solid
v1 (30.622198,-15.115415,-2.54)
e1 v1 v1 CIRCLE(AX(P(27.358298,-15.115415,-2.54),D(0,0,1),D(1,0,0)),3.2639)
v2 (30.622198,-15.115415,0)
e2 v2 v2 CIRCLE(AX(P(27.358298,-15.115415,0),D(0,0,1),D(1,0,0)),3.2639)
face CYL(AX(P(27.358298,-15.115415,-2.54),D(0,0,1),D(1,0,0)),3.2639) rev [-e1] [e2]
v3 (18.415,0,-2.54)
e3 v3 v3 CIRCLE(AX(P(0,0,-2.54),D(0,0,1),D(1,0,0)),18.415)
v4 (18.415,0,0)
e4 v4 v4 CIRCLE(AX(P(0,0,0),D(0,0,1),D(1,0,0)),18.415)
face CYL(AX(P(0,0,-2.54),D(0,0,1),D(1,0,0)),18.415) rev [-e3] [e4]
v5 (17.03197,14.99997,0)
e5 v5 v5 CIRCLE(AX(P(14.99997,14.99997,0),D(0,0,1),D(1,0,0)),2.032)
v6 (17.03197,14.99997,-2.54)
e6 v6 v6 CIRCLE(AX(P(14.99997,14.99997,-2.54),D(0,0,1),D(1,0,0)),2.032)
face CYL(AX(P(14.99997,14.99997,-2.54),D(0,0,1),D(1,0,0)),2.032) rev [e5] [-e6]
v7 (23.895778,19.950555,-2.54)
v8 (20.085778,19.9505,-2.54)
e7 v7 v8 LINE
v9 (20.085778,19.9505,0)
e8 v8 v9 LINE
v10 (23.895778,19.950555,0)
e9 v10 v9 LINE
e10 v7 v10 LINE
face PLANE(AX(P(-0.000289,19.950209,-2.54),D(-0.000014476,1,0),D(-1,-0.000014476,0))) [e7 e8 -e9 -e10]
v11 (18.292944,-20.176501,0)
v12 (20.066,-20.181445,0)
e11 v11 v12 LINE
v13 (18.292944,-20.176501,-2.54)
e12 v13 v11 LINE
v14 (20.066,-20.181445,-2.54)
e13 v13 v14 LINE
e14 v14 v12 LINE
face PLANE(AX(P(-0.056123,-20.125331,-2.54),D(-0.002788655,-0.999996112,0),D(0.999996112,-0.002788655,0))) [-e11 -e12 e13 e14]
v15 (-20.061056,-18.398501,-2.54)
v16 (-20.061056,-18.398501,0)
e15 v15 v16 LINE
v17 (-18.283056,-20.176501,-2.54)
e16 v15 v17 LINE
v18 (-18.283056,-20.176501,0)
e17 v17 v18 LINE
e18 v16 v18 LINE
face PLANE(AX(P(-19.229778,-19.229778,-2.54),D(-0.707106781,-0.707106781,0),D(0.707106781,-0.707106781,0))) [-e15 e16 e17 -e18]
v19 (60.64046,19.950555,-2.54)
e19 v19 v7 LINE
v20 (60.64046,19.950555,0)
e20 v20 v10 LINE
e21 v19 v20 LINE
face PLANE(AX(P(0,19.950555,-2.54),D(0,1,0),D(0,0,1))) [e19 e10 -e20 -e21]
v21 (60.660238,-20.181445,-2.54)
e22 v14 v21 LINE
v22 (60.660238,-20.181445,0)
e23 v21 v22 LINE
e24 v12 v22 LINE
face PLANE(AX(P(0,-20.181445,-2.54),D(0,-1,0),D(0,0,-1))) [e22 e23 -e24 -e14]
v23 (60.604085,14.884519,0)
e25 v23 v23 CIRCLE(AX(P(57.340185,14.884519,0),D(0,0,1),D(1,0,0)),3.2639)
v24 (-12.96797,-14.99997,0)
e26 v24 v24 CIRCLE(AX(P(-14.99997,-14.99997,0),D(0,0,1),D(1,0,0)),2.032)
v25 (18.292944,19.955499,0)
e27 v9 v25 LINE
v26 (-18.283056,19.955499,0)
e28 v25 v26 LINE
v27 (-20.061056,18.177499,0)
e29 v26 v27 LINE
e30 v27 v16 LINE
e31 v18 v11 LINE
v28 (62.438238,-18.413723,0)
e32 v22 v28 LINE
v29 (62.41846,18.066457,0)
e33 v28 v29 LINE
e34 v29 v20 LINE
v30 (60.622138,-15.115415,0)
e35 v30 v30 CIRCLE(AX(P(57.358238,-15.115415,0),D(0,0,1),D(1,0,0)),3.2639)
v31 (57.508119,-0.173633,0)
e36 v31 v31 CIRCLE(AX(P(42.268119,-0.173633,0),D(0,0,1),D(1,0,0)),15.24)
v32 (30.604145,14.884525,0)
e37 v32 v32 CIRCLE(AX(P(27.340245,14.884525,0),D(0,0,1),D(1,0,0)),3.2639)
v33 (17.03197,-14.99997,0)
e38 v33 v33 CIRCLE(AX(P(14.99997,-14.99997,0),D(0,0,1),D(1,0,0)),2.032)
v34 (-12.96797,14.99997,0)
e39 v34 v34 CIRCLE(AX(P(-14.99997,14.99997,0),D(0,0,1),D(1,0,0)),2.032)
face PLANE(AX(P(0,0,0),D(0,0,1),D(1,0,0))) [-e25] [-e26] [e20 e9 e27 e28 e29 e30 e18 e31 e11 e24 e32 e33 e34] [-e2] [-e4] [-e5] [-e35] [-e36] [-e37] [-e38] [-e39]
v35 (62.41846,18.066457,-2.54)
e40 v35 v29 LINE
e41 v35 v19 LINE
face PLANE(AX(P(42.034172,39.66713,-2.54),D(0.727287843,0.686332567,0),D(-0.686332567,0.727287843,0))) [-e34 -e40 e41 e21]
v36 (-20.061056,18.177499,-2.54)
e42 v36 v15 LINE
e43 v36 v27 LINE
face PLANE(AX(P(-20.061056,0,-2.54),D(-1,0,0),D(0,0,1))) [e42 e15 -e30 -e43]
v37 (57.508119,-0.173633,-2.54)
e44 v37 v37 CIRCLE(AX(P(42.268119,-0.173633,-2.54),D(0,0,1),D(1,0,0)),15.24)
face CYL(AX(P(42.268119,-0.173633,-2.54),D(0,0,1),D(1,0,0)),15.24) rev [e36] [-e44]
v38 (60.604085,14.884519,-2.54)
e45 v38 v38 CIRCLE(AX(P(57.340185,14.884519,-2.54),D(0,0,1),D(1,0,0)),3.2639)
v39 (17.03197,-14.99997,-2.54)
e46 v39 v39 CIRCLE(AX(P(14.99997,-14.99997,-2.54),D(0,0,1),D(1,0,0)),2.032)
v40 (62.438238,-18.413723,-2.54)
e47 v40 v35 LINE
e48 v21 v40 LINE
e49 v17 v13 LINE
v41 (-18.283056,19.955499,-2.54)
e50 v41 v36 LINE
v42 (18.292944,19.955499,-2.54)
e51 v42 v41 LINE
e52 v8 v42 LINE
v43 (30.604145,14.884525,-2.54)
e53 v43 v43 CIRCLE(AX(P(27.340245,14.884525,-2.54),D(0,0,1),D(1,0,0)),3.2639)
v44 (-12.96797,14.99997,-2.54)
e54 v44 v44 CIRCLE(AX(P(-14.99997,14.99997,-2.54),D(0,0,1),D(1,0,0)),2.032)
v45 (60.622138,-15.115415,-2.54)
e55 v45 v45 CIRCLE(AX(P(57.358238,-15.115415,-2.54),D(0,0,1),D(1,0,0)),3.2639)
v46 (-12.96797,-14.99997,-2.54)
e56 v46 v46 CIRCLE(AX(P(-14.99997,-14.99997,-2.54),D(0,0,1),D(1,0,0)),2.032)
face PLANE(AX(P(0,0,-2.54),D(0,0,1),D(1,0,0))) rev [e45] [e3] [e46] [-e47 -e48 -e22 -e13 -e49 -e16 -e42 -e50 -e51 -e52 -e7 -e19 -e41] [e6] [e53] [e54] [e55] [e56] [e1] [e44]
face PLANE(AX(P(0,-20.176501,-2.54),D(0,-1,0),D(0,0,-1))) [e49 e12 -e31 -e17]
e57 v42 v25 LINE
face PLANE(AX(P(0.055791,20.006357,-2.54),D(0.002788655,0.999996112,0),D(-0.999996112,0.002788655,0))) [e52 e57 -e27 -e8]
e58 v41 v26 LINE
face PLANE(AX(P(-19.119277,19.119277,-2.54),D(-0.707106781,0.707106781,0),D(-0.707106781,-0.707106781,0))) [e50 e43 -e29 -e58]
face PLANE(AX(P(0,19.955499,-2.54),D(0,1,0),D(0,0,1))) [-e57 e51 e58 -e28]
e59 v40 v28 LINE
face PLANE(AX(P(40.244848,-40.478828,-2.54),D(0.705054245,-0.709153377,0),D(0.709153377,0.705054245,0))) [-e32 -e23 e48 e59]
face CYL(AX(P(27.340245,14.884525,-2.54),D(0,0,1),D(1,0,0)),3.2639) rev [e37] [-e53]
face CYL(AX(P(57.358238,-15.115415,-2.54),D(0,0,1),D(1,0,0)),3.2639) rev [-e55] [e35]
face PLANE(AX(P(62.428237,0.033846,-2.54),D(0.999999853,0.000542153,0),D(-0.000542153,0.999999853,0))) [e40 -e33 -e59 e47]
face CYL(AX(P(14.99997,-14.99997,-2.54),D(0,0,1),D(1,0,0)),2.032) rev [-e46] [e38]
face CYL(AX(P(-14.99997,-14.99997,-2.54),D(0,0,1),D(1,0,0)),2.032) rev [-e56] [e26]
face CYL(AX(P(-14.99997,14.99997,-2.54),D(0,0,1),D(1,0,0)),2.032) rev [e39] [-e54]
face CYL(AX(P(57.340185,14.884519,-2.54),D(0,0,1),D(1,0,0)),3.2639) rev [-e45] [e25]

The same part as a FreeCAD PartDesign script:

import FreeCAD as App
import Part
import Sketcher
Q = App.Units.Quantity

doc = App.newDocument("Part")
body = doc.addObject("PartDesign::Body", "Body")

sketch1 = doc.addObject("Sketcher::SketchObject", "Sketch")
body.addObject(sketch1)
sketch1.AttachmentSupport = (doc.XY_Plane, [""])
sketch1.MapMode = "FlatFace"
sketch1.addGeometry(Part.LineSegment(App.Vector(23.895778, 19.950555, 0), App.Vector(20.085778, 19.9505, 0)), False)
sketch1.addGeometry(Part.LineSegment(App.Vector(20.085778, 19.9505, 0), App.Vector(18.292944, 19.955499, 0)), False)
sketch1.addGeometry(Part.LineSegment(App.Vector(18.292944, 19.955499, 0), App.Vector(-18.283056, 19.955499, 0)), False)
sketch1.addGeometry(Part.LineSegment(App.Vector(-18.283056, 19.955499, 0), App.Vector(-20.061056, 18.177499, 0)), False)
sketch1.addGeometry(Part.LineSegment(App.Vector(-20.061056, 18.177499, 0), App.Vector(-20.061056, -18.398501, 0)), False)
sketch1.addGeometry(Part.LineSegment(App.Vector(-20.061056, -18.398501, 0), App.Vector(-18.283056, -20.176501, 0)), False)
sketch1.addGeometry(Part.LineSegment(App.Vector(-18.283056, -20.176501, 0), App.Vector(18.292944, -20.176501, 0)), False)
sketch1.addGeometry(Part.LineSegment(App.Vector(18.292944, -20.176501, 0), App.Vector(20.066, -20.181445, 0)), False)
sketch1.addGeometry(Part.LineSegment(App.Vector(20.066, -20.181445, 0), App.Vector(60.660238, -20.181445, 0)), False)
sketch1.addGeometry(Part.LineSegment(App.Vector(60.660238, -20.181445, 0), App.Vector(62.438238, -18.413723, 0)), False)
sketch1.addGeometry(Part.LineSegment(App.Vector(62.438238, -18.413723, 0), App.Vector(62.41846, 18.066457, 0)), False)
sketch1.addGeometry(Part.LineSegment(App.Vector(62.41846, 18.066457, 0), App.Vector(60.64046, 19.950555, 0)), False)
sketch1.addGeometry(Part.LineSegment(App.Vector(60.64046, 19.950555, 0), App.Vector(23.895778, 19.950555, 0)), False)
sketch1.addGeometry(Part.Circle(App.Vector(-14.99997, -14.99997, 0), App.Vector(0, 0, 1), 2.032), False)
sketch1.addGeometry(Part.Circle(App.Vector(14.99997, -14.99997, 0), App.Vector(0, 0, 1), 2.032), False)
sketch1.addGeometry(Part.Circle(App.Vector(0, 0, 0), App.Vector(0, 0, 1), 18.415), False)
sketch1.addGeometry(Part.Circle(App.Vector(27.358298, -15.115415, 0), App.Vector(0, 0, 1), 3.2639), False)
sketch1.addGeometry(Part.Circle(App.Vector(57.358238, -15.115415, 0), App.Vector(0, 0, 1), 3.2639), False)
sketch1.addGeometry(Part.Circle(App.Vector(42.268119, -0.173633, 0), App.Vector(0, 0, 1), 15.24), False)
sketch1.addGeometry(Part.Circle(App.Vector(-14.99997, 14.99997, 0), App.Vector(0, 0, 1), 2.032), False)
sketch1.addGeometry(Part.Circle(App.Vector(14.99997, 14.99997, 0), App.Vector(0, 0, 1), 2.032), False)
sketch1.addGeometry(Part.Circle(App.Vector(27.340245, 14.884525, 0), App.Vector(0, 0, 1), 3.2639), False)
sketch1.addGeometry(Part.Circle(App.Vector(57.340185, 14.884519, 0), App.Vector(0, 0, 1), 3.2639), False)
sketch1.addConstraint(Sketcher.Constraint("Coincident", 0, 2, 1, 1))
sketch1.addConstraint(Sketcher.Constraint("Coincident", 1, 2, 2, 1))
sketch1.addConstraint(Sketcher.Constraint("Coincident", 2, 2, 3, 1))
sketch1.addConstraint(Sketcher.Constraint("Coincident", 3, 2, 4, 1))
sketch1.addConstraint(Sketcher.Constraint("Coincident", 4, 2, 5, 1))
sketch1.addConstraint(Sketcher.Constraint("Coincident", 5, 2, 6, 1))
sketch1.addConstraint(Sketcher.Constraint("Coincident", 6, 2, 7, 1))
sketch1.addConstraint(Sketcher.Constraint("Coincident", 7, 2, 8, 1))
sketch1.addConstraint(Sketcher.Constraint("Coincident", 8, 2, 9, 1))
sketch1.addConstraint(Sketcher.Constraint("Coincident", 9, 2, 10, 1))
sketch1.addConstraint(Sketcher.Constraint("Coincident", 10, 2, 11, 1))
sketch1.addConstraint(Sketcher.Constraint("Coincident", 11, 2, 12, 1))
sketch1.addConstraint(Sketcher.Constraint("Coincident", 12, 2, 0, 1))
sketch1.addConstraint(Sketcher.Constraint("Horizontal", 2))
sketch1.addConstraint(Sketcher.Constraint("Vertical", 4))
sketch1.addConstraint(Sketcher.Constraint("Horizontal", 6))
sketch1.addConstraint(Sketcher.Constraint("Horizontal", 8))
sketch1.addConstraint(Sketcher.Constraint("Horizontal", 12))
sketch1.addConstraint(Sketcher.Constraint("Coincident", 15, 3, -1, 1))
sketch1.addConstraint(Sketcher.Constraint("Equal", 13, 14))
sketch1.addConstraint(Sketcher.Constraint("Equal", 16, 17))
sketch1.addConstraint(Sketcher.Constraint("Equal", 14, 19))
sketch1.addConstraint(Sketcher.Constraint("Equal", 19, 20))
sketch1.addConstraint(Sketcher.Constraint("Equal", 17, 21))
sketch1.addConstraint(Sketcher.Constraint("Equal", 21, 22))
sketch1.addConstraint(Sketcher.Constraint("Symmetric", 14, 3, 19, 3, -1, 1))
sketch1.addConstraint(Sketcher.Constraint("Symmetric", 13, 3, 20, 3, -1, 1))
sketch1.addConstraint(Sketcher.Constraint("Symmetric", 13, 3, 14, 3, -2))
sketch1.addConstraint(Sketcher.Constraint("Perpendicular", 3, 5))
sketch1.addConstraint(Sketcher.Constraint("Parallel", 1, 7))
sketch1.addConstraint(Sketcher.Constraint("Horizontal", 16, 3, 17, 3))
sketch1.addConstraint(Sketcher.Constraint("Vertical", 2, 2, 5, 2))
sketch1.addConstraint(Sketcher.Constraint("Vertical", 1, 2, 6, 2))
sketch1.addConstraint(Sketcher.Constraint("Equal", 6, 4))
sketch1.addConstraint(Sketcher.Constraint("Equal", 3, 5))
sketch1.addConstraint(Sketcher.Constraint("Diameter", 18, Q("1.2 in")))
sketch1.addConstraint(Sketcher.Constraint("Diameter", 13, Q("0.16 in")))
sketch1.addConstraint(Sketcher.Constraint("Diameter", 15, Q("1.45 in")))
sketch1.addConstraint(Sketcher.Constraint("Diameter", 16, Q("0.257 in")))
sketch1.addConstraint(Sketcher.Constraint("DistanceX", 2, 2, 2, 1, Q("1.44 in")))
sketch1.addConstraint(Sketcher.Constraint("DistanceX", 17, 3, 9, 2, Q("0.2 in")))
sketch1.addConstraint(Sketcher.Constraint("Distance", 0, Q("0.15 in")))
sketch1.addConstraint(Sketcher.Constraint("DistanceX", -1, 1, 7, 2, Q("0.79 in")))
sketch1.addConstraint(Sketcher.Constraint("DistanceX", 3, 2, 2, 2, Q("0.07 in")))
sketch1.addConstraint(Sketcher.Constraint("DistanceX", 17, 3, 8, 2, Q("0.13 in")))
sketch1.addConstraint(Sketcher.Constraint("DistanceX", 11, 2, 10, 2, Q("0.07 in")))
sketch1.addConstraint(Sketcher.Constraint("DistanceX", 13, 3, 14, 3, Q("1.1811 in")))
sketch1.addConstraint(Sketcher.Constraint("DistanceX", 16, 3, 17, 3, Q("1.1811 in")))
sketch1.addConstraint(Sketcher.Constraint("DistanceY", 13, 3, 19, 3, Q("1.1811 in")))
sketch1.addConstraint(Sketcher.Constraint("DistanceY", 16, 3, 21, 3, Q("1.1811 in")))
sketch1.addConstraint(Sketcher.Constraint("DistanceX", 21, 3, 22, 3, Q("1.1811 in")))
sketch1.addConstraint(Sketcher.Constraint("DistanceX", 8, 1, 8, 2, 40.594238))
sketch1.addConstraint(Sketcher.Constraint("DistanceY", -1, 1, 0, 2, 19.9505))
sketch1.addConstraint(Sketcher.Constraint("DistanceY", -1, 1, 1, 2, 19.955499))
sketch1.addConstraint(Sketcher.Constraint("DistanceX", 1, 2, 21, 3, 9.0473))
sketch1.addConstraint(Sketcher.Constraint("Distance", 1, 1.79284))
sketch1.addConstraint(Sketcher.Constraint("Distance", 11, 2.590581))
sketch1.addConstraint(Sketcher.Constraint("DistanceX", 12, 2, 12, 1, 36.744682))
sketch1.addConstraint(Sketcher.Constraint("DistanceX", -1, 1, 18, 3, 42.268119))
sketch1.addConstraint(Sketcher.Constraint("DistanceY", -1, 1, 22, 3, 14.884519))
sketch1.addConstraint(Sketcher.Constraint("DistanceX", -1, 1, 10, 2, 62.41846))
sketch1.addConstraint(Sketcher.Constraint("DistanceY", 7, 2, 16, 3, 5.06603))
sketch1.addConstraint(Sketcher.Constraint("DistanceY", 9, 2, 18, 3, 18.24009))
sketch1.addConstraint(Sketcher.Constraint("DistanceY", 9, 2, 22, 3, 33.298242))
sketch1.addConstraint(Sketcher.Constraint("DistanceY", 18, 3, 10, 2, 18.24009))
pad1 = doc.addObject("PartDesign::Pad", "Pad")
body.addObject(pad1)
pad1.Profile = sketch1
pad1.Length = Q("0.1 in")
pad1.Reversed = True

doc.recompute()
